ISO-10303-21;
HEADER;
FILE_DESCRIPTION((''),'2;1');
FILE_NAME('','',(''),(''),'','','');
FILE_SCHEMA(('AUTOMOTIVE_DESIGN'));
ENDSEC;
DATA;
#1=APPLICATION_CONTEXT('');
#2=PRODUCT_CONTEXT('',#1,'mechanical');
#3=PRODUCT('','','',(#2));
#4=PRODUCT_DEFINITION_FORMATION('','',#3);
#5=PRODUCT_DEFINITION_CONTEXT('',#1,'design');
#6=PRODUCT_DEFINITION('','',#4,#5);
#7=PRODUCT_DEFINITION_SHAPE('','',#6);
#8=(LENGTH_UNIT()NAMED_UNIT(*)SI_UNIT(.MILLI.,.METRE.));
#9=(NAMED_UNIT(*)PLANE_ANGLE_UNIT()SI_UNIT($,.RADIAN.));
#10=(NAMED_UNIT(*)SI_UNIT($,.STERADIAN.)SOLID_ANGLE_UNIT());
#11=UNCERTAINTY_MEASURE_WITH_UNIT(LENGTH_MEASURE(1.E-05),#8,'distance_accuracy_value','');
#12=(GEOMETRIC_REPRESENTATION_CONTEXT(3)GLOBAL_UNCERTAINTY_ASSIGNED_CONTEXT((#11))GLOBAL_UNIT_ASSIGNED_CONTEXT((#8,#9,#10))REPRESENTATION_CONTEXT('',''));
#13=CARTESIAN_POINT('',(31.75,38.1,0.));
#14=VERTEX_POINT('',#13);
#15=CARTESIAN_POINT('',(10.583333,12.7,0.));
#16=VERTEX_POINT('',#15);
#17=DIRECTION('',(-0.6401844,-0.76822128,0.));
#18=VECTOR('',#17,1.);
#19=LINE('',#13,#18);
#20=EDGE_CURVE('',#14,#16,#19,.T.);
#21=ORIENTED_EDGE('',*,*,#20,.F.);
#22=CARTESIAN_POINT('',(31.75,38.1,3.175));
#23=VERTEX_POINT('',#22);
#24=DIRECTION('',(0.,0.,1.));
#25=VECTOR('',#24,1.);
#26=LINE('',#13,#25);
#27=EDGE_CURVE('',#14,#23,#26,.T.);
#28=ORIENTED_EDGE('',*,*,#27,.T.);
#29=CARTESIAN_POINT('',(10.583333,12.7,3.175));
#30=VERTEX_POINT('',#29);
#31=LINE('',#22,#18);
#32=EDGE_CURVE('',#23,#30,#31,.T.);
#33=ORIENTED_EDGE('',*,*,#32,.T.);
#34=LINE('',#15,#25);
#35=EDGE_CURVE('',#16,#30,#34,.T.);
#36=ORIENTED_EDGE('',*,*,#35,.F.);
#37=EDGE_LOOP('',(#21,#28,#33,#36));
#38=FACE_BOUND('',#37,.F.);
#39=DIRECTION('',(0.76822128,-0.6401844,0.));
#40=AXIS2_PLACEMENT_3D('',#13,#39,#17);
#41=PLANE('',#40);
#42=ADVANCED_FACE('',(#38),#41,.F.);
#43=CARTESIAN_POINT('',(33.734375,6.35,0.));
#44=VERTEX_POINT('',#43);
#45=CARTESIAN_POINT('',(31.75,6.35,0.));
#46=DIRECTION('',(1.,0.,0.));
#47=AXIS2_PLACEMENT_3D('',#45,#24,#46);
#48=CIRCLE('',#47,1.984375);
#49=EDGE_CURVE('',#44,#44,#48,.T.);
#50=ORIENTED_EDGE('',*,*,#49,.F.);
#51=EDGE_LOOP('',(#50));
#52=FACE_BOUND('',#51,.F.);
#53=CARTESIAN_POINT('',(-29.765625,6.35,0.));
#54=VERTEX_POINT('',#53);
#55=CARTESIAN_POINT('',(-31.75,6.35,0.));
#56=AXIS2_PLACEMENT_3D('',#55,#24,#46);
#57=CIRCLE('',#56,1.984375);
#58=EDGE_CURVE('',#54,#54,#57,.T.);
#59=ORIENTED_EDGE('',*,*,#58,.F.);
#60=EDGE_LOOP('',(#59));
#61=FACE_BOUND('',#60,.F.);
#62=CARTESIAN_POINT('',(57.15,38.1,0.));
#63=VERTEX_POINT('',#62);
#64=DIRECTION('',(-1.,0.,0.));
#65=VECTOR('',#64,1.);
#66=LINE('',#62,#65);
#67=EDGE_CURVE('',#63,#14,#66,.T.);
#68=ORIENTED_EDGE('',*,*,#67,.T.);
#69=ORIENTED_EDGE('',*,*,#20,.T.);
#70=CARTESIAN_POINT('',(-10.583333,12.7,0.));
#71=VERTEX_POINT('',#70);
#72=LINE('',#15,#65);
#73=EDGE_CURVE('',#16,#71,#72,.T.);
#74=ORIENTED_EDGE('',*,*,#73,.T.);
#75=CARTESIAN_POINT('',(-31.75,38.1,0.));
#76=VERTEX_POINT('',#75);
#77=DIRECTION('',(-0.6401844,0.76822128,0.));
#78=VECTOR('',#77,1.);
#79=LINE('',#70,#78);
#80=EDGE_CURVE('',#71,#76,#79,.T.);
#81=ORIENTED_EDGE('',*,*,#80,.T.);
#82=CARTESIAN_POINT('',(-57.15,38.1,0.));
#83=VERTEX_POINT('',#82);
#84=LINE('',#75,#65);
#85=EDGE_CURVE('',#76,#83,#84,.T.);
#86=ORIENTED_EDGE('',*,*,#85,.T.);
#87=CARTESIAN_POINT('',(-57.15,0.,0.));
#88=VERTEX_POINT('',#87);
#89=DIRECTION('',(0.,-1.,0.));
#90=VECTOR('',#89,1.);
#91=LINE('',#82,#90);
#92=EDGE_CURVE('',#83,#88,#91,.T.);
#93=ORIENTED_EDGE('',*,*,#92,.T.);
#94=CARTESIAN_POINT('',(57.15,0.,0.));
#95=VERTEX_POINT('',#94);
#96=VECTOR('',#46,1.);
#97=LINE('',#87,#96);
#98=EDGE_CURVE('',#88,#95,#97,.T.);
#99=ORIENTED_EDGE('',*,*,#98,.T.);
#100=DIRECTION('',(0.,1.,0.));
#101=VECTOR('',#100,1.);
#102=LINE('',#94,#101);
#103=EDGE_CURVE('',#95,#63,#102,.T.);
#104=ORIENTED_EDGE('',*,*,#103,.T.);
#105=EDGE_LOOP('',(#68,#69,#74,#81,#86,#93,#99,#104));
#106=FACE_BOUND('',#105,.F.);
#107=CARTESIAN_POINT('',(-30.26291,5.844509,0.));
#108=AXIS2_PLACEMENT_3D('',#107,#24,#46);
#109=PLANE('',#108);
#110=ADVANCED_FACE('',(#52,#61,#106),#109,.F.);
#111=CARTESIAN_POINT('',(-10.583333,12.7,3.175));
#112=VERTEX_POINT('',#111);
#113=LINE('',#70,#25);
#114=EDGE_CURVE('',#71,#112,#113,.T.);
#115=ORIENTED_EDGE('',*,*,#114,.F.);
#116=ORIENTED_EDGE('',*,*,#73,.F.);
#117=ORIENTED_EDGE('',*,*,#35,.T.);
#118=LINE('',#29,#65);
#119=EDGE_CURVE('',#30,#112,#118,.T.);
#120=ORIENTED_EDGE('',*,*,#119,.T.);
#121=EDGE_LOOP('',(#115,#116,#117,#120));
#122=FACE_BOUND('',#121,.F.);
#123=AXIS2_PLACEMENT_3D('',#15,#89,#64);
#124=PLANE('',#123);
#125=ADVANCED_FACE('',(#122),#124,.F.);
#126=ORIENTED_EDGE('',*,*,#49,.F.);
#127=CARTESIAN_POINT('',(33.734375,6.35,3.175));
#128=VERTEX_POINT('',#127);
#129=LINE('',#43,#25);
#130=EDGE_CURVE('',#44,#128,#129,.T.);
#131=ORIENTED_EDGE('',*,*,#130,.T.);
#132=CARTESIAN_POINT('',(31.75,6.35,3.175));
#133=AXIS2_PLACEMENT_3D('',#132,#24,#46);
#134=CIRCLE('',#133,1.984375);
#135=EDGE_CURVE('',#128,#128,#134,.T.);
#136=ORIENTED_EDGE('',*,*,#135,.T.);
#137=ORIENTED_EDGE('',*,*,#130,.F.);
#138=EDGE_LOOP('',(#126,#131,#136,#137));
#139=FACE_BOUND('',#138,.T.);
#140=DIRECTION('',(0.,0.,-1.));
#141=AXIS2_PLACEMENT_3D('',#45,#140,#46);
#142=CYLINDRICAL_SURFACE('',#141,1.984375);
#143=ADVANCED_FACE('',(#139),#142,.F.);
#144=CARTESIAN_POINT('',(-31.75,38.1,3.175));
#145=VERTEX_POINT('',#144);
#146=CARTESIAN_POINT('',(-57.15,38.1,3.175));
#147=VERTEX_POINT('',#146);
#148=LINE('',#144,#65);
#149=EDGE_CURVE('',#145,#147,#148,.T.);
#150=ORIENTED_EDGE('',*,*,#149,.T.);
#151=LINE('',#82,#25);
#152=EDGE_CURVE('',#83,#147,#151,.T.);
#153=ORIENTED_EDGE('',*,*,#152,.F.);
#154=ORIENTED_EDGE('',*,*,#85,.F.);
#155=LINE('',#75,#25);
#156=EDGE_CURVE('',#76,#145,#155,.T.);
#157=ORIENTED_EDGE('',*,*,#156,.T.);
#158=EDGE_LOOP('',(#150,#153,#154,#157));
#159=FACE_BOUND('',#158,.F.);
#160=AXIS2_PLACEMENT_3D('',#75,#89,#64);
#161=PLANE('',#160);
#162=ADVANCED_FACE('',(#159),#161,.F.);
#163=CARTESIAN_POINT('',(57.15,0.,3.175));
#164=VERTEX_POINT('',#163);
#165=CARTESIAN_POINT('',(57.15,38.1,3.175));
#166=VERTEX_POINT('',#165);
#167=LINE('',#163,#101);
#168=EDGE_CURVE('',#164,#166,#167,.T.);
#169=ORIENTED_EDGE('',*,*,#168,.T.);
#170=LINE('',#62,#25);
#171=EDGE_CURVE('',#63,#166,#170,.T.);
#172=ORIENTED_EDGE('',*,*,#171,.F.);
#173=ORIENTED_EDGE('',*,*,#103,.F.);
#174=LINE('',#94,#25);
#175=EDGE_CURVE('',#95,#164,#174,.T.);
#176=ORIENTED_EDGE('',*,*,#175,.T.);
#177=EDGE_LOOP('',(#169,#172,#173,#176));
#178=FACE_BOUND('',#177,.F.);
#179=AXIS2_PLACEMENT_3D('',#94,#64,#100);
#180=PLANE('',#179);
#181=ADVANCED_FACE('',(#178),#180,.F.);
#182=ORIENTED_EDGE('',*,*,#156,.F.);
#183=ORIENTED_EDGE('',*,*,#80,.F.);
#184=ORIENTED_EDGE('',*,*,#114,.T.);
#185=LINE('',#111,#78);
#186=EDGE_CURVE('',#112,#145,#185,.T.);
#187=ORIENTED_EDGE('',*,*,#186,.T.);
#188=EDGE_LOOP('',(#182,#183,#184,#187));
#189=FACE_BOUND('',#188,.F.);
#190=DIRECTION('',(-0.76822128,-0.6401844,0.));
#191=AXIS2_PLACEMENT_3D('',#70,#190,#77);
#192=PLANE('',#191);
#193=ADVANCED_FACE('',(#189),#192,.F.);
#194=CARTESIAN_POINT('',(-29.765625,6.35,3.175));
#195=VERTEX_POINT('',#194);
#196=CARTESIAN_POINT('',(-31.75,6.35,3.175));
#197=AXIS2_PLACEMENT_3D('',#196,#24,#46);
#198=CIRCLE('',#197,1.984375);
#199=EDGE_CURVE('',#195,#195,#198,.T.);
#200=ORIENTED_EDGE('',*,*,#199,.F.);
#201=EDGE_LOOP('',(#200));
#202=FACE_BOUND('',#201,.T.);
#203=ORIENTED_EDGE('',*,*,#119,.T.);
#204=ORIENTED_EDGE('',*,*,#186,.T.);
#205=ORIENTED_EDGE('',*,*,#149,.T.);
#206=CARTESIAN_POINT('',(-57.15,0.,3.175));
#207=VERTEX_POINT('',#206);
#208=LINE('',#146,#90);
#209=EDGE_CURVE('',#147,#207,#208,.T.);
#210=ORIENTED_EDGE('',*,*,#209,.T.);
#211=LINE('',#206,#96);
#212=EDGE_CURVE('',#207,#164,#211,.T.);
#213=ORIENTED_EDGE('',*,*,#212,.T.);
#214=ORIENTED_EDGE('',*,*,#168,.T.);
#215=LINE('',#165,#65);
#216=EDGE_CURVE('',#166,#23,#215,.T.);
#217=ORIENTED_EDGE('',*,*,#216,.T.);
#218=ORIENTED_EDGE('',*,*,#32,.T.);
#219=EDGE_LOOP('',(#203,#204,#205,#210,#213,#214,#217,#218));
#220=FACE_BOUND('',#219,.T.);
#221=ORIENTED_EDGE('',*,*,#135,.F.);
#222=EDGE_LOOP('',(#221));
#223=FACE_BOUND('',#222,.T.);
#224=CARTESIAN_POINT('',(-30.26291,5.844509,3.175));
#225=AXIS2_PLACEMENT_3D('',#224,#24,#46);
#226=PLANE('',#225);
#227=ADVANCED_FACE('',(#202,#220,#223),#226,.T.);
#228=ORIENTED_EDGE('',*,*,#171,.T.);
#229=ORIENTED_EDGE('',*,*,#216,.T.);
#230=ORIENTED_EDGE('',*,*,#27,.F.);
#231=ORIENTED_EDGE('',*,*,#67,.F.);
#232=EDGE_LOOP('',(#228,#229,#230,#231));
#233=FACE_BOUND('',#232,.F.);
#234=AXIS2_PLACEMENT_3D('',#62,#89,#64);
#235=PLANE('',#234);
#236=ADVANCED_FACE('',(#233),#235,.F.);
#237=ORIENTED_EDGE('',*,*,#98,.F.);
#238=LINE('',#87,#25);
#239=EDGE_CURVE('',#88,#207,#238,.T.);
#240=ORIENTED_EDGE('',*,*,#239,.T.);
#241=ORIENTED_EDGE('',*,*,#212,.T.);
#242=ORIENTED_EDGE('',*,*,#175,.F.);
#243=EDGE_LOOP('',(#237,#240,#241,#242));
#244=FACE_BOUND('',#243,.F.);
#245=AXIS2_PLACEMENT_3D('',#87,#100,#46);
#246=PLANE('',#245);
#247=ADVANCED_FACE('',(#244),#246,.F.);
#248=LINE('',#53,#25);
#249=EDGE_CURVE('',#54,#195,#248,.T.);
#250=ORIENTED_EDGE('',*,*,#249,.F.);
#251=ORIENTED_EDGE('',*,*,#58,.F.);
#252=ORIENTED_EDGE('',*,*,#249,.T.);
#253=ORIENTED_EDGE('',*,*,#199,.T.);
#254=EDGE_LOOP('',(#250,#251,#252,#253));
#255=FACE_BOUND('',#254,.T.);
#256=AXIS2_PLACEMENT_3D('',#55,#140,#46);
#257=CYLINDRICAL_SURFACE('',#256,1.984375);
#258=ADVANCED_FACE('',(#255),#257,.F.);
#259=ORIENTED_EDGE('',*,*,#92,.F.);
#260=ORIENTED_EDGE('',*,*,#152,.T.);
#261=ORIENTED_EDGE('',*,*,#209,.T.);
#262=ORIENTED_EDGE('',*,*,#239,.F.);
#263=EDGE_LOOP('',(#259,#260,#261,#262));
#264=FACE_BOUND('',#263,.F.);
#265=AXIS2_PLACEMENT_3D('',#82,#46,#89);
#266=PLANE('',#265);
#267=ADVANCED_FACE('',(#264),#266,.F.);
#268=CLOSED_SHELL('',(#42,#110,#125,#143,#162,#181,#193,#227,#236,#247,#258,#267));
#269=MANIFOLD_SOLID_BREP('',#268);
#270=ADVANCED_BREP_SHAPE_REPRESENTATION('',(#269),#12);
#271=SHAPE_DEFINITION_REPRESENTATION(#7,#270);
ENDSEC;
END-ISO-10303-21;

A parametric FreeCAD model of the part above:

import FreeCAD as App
import Part
import Sketcher
Q = App.Units.Quantity

doc = App.newDocument("Part")
body = doc.addObject("PartDesign::Body", "Body")

# Sketch on XY plane
sketch1 = body.newObject("Sketcher::SketchObject", "Sketch")
sketch1.AttachmentSupport = (doc.getObject("XY_Plane"), [""])
sketch1.MapMode = "FlatFace"
sketch1.addGeometry([
    Part.LineSegment(App.Vector(-57.1, 0, 0), App.Vector(57.1, 0, 0)),  # 0
    Part.LineSegment(App.Vector(57.1, 0, 0), App.Vector(57.1, 38.1, 0)),  # 1
    Part.LineSegment(App.Vector(57.1, 38.1, 0), App.Vector(31.8, 38.1, 0)),  # 2
    Part.LineSegment(App.Vector(31.8, 38.1, 0), App.Vector(10.6, 12.7, 0)),  # 3
    Part.LineSegment(App.Vector(10.6, 12.7, 0), App.Vector(-10.6, 12.7, 0)),  # 4
    Part.LineSegment(App.Vector(-10.6, 12.7, 0), App.Vector(-31.8, 38.1, 0)),  # 5
    Part.LineSegment(App.Vector(-31.8, 38.1, 0), App.Vector(-57.1, 38.1, 0)),  # 6
    Part.LineSegment(App.Vector(-57.1, 38.1, 0), App.Vector(-57.1, 0, 0)),  # 7
    Part.Circle(App.Vector(-31.8, 6.3, 0), App.Vector(0, 0, 1), 2),  # 8
    Part.Circle(App.Vector(31.8, 6.3, 0), App.Vector(0, 0, 1), 2),  # 9
], False)
sketch1.addConstraint([
    Sketcher.Constraint("Coincident", 0, 2, 1, 1),
    Sketcher.Constraint("Coincident", 1, 2, 2, 1),
    Sketcher.Constraint("Coincident", 2, 2, 3, 1),
    Sketcher.Constraint("Coincident", 3, 2, 4, 1),
    Sketcher.Constraint("Coincident", 4, 2, 5, 1),
    Sketcher.Constraint("Coincident", 5, 2, 6, 1),
    Sketcher.Constraint("Coincident", 6, 2, 7, 1),
    Sketcher.Constraint("Coincident", 7, 2, 0, 1),
    Sketcher.Constraint("Horizontal", 0),
    Sketcher.Constraint("Vertical", 1),
    Sketcher.Constraint("Horizontal", 2),
    Sketcher.Constraint("Horizontal", 4),
    Sketcher.Constraint("Horizontal", 6),
    Sketcher.Constraint("Vertical", 7),
    Sketcher.Constraint("Equal", 8, 9),
    Sketcher.Constraint("Symmetric", 0, 2, 7, 2, -1, 1),
    Sketcher.Constraint("Symmetric", 8, 3, 9, 3, -2),
    Sketcher.Constraint("Symmetric", 2, 2, 5, 2, -2),
    Sketcher.Constraint("Vertical", 9, 3, 2, 2),
    Sketcher.Constraint("Equal", 3, 5),
    Sketcher.Constraint("DistanceX", 2, 2, 2, 1, Q("1 in")),
    Sketcher.Constraint("Diameter", 8, Q("0.15625 in")),
    Sketcher.Constraint("DistanceX", 0, 1, 0, 2, Q("4.5 in")),
    Sketcher.Constraint("DistanceY", 1, 1, 1, 2, Q("1.5 in")),
    Sketcher.Constraint("DistanceY", 3, 2, 2, 2, Q("1 in")),
    Sketcher.Constraint("DistanceY", -1, 1, 8, 3, Q("0.25 in")),
    Sketcher.Constraint("Distance", 3, Q("33.06339 mm")),
])
pad1 = body.newObject("PartDesign::Pad", "Pad")
pad1.Profile = sketch1
pad1.Length = Q("0.125 in")

doc.recompute()
